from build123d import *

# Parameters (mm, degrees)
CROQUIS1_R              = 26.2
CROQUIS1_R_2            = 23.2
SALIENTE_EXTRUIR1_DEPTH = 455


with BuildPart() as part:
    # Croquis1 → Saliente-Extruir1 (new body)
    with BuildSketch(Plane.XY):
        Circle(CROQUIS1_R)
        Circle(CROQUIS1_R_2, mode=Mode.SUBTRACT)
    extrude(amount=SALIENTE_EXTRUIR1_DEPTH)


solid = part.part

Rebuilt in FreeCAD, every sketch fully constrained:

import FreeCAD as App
import Part
import Sketcher
from FreeCAD import Vector

doc = App.newDocument("Part")
body = doc.addObject("PartDesign::Body", "Body")

sketch1 = body.newObject("Sketcher::SketchObject", "Sketch")
sketch1.AttachmentSupport = (doc.getObject("XY_Plane"), [""])
sketch1.MapMode = "FlatFace"
sketch1.addGeometry([
    Part.Circle(Vector(0, 0, 0), Vector(0, 0, 1), 26),
    Part.Circle(Vector(0, 0, 0), Vector(0, 0, 1), 23),
], False)
sketch1.addConstraint([
    Sketcher.Constraint("Coincident", 0, 3, -1, 1),
    Sketcher.Constraint("Coincident", 1, 3, -1, 1),
    Sketcher.Constraint("Diameter", 0, 52.4),
    Sketcher.Constraint("Diameter", 1, 46.4),
])
pad1 = body.newObject("PartDesign::Pad", "Pad")
pad1.Profile = sketch1
pad1.Length = 455

doc.recompute()
